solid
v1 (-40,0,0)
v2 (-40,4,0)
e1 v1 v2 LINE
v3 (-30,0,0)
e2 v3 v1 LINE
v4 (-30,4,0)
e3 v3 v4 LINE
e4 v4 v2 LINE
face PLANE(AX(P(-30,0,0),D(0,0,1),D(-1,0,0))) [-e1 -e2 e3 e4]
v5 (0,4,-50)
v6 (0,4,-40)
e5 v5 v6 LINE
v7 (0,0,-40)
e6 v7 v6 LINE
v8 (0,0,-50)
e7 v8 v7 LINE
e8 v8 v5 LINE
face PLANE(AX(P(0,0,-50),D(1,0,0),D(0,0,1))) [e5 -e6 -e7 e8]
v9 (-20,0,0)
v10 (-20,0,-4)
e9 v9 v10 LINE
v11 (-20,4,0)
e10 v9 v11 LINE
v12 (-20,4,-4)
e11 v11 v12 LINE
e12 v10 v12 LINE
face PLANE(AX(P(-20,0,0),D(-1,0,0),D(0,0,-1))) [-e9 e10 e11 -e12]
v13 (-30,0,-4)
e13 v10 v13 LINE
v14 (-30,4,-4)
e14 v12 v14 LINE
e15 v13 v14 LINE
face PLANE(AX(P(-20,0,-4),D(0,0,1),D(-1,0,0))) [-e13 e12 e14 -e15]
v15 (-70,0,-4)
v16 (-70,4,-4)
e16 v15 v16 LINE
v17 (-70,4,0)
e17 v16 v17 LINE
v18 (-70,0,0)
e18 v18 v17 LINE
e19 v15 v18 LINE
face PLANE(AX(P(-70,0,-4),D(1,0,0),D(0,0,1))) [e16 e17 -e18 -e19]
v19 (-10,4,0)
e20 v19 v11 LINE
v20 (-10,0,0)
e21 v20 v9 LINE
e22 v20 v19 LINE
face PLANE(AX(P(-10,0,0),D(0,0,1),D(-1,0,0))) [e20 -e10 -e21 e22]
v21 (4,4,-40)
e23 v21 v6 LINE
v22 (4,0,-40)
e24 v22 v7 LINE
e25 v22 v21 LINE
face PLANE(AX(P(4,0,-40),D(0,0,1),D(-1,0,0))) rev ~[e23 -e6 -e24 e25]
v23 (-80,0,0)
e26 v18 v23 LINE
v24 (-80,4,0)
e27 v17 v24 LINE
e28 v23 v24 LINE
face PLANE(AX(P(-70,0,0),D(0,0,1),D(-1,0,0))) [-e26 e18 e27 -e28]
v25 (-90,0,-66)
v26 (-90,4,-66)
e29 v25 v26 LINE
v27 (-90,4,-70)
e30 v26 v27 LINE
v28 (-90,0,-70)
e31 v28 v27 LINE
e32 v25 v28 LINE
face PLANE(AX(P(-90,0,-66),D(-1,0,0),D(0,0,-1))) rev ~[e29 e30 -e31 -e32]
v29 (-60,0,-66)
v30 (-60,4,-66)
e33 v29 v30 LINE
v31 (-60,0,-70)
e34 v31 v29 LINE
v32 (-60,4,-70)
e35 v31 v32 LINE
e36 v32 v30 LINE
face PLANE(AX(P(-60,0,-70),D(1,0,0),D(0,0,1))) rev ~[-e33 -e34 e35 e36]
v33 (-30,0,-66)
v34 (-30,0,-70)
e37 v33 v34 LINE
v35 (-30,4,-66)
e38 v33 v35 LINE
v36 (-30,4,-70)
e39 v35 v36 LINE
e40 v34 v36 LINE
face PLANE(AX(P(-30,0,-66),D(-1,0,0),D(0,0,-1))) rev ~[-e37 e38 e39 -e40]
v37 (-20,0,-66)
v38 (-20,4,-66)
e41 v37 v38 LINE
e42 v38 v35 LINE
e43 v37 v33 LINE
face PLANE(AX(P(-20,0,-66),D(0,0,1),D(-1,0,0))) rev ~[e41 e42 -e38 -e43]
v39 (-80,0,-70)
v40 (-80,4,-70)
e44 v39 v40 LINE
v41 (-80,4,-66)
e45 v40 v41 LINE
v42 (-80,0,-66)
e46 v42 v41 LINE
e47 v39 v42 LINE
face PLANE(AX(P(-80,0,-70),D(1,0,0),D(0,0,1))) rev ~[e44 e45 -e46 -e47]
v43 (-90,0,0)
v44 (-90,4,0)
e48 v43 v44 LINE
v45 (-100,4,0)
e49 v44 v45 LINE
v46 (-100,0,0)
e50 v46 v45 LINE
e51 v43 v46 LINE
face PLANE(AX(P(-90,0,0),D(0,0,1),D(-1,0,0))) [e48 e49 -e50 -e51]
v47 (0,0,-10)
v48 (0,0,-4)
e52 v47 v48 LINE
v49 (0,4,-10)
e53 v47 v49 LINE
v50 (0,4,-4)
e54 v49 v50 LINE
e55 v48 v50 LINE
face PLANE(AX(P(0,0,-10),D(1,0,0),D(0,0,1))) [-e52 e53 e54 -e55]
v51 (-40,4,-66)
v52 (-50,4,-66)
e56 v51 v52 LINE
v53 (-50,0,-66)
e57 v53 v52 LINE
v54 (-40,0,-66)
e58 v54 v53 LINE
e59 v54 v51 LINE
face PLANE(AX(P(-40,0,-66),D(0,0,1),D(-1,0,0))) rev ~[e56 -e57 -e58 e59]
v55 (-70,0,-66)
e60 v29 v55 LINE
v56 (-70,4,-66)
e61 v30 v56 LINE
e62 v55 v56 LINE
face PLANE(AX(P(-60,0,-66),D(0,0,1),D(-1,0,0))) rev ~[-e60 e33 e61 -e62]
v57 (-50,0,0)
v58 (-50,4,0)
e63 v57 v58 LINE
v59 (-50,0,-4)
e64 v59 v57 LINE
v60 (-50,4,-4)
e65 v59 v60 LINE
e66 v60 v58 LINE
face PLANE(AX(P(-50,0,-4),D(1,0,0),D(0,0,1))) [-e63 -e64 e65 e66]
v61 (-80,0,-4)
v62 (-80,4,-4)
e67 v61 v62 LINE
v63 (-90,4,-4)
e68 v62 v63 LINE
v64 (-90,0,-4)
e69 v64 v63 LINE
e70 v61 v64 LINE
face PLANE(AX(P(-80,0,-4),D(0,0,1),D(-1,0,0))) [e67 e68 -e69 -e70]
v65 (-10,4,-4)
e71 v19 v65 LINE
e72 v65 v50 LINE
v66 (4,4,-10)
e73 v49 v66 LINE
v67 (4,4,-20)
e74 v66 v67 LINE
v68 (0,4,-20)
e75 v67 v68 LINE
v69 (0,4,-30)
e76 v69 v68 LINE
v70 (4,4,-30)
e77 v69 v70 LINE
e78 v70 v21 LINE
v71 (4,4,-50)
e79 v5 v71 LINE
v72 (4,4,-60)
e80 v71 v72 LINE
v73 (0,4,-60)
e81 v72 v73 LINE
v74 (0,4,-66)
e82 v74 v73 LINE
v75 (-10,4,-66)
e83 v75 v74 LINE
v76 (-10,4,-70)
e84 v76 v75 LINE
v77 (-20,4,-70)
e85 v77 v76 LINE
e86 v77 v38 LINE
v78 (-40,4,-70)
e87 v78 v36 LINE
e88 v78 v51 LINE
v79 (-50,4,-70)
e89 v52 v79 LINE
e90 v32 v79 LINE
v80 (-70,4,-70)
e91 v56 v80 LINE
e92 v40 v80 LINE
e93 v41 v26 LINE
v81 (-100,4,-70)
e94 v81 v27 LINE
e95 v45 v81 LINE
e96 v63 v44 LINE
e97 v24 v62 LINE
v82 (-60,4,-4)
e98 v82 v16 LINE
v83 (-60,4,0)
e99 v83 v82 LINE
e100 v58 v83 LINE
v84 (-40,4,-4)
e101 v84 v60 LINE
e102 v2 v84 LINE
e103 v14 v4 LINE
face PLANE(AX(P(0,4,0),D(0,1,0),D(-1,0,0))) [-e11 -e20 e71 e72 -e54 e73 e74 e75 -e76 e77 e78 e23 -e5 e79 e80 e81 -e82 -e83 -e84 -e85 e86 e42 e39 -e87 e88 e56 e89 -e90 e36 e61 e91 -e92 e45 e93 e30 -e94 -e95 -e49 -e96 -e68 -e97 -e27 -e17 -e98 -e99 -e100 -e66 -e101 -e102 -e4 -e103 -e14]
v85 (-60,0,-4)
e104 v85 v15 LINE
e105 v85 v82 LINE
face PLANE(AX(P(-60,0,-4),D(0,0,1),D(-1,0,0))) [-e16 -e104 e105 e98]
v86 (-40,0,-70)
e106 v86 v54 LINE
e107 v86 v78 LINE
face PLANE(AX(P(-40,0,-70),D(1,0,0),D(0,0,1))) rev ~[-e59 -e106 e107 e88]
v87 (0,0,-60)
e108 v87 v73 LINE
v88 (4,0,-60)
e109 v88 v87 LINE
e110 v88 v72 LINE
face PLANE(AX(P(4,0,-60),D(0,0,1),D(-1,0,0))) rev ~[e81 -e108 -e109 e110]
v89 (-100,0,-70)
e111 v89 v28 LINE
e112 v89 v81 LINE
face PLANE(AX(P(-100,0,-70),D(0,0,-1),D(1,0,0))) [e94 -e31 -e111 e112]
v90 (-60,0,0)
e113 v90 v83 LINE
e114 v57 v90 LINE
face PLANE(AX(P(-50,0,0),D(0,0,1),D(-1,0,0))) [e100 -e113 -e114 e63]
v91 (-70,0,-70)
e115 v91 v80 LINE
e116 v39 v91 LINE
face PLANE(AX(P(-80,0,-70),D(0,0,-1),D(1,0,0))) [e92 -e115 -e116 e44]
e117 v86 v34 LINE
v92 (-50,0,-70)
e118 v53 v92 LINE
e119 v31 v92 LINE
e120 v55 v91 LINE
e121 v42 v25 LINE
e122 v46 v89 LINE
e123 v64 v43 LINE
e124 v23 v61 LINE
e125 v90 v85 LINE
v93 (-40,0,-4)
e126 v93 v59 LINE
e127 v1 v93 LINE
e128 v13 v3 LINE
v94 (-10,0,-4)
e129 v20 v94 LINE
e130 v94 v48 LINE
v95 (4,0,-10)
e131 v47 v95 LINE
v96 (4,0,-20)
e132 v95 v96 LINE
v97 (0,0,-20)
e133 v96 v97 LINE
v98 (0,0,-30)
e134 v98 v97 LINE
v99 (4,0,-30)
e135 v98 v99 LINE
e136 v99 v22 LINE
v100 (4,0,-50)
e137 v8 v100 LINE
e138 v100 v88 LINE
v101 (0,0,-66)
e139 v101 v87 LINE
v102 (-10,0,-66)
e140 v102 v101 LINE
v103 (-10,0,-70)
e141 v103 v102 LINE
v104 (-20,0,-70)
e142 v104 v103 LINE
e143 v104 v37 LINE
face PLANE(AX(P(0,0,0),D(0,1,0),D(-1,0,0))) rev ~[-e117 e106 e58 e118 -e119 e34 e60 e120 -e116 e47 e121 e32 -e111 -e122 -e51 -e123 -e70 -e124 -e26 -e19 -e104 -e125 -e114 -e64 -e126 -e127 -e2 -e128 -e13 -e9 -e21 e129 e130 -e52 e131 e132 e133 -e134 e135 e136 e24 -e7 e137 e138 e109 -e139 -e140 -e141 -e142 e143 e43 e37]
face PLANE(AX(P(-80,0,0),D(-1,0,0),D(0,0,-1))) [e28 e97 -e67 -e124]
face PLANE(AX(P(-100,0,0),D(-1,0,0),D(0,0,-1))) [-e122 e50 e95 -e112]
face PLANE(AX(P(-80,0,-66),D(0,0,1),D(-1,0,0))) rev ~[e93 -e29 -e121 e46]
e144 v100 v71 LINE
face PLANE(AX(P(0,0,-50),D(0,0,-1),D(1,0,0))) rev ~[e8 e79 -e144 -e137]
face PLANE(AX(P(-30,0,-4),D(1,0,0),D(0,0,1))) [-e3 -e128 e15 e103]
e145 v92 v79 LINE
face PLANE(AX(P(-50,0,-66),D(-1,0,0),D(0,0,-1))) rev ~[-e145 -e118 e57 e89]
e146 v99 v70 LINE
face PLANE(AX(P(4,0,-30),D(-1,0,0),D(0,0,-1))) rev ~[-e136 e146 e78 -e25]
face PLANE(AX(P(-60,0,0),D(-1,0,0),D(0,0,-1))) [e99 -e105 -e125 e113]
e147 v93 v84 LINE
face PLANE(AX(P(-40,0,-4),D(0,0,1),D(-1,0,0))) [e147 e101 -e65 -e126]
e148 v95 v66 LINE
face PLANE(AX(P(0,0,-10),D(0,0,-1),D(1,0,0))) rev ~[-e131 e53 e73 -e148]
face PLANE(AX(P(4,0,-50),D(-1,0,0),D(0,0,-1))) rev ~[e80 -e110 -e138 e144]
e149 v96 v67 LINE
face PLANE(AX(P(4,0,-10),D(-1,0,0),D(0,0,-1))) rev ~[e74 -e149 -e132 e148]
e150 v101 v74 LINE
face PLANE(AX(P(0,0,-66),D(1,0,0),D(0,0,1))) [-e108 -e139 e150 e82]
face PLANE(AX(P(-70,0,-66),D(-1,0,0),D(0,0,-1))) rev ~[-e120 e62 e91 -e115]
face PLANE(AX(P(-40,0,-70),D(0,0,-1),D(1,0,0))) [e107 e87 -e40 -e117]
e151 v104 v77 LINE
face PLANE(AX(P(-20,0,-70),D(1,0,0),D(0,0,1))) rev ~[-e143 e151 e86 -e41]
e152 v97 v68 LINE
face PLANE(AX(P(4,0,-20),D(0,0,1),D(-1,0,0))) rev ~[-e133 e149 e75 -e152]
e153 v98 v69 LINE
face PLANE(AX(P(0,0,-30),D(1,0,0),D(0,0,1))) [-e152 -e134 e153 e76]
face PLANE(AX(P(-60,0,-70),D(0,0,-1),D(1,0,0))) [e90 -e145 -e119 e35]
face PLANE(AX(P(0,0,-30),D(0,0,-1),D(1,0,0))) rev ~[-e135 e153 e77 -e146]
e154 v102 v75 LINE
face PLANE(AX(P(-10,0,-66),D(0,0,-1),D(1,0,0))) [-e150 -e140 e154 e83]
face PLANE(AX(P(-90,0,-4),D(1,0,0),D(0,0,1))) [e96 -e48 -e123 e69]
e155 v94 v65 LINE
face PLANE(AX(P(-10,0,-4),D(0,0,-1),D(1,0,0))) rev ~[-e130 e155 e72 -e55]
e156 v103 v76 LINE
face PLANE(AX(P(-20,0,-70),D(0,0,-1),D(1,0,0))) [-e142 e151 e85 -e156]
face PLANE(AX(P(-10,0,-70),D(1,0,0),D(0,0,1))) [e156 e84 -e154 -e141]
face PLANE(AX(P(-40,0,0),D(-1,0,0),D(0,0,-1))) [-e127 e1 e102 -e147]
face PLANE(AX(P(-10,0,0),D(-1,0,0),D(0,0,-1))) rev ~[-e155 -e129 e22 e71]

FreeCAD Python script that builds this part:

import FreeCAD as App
import Part
import Sketcher

V = App.Vector

doc = App.newDocument("Part")
body = doc.addObject("PartDesign::Body", "Body")

# Sketch on XZ plane
sketch1 = body.newObject("Sketcher::SketchObject", "Sketch")
sketch1.AttachmentSupport = (doc.getObject("XZ_Plane"), [""])
sketch1.MapMode = "FlatFace"
sketch1.addGeometry(Part.LineSegment(V(-20, 0, 0), V(-10, 0, 0)), False)
sketch1.addGeometry(Part.LineSegment(V(-10, 0, 0), V(-10, -4, 0)), False)
sketch1.addGeometry(Part.LineSegment(V(-10, -4, 0), V(0, -4, 0)), False)
sketch1.addGeometry(Part.LineSegment(V(0, -4, 0), V(0, -10, 0)), False)
sketch1.addGeometry(Part.LineSegment(V(0, -10, 0), V(4, -10, 0)), False)
sketch1.addGeometry(Part.LineSegment(V(4, -10, 0), V(4, -20, 0)), False)
sketch1.addGeometry(Part.LineSegment(V(4, -20, 0), V(0, -20, 0)), False)
sketch1.addGeometry(Part.LineSegment(V(0, -20, 0), V(0, -30, 0)), False)
sketch1.addGeometry(Part.LineSegment(V(0, -30, 0), V(4, -30, 0)), False)
sketch1.addGeometry(Part.LineSegment(V(4, -30, 0), V(4, -40, 0)), False)
sketch1.addGeometry(Part.LineSegment(V(4, -40, 0), V(0, -40, 0)), False)
sketch1.addGeometry(Part.LineSegment(V(0, -40, 0), V(0, -50, 0)), False)
sketch1.addGeometry(Part.LineSegment(V(0, -50, 0), V(4, -50, 0)), False)
sketch1.addGeometry(Part.LineSegment(V(4, -50, 0), V(4, -60, 0)), False)
sketch1.addGeometry(Part.LineSegment(V(4, -60, 0), V(0, -60, 0)), False)
sketch1.addGeometry(Part.LineSegment(V(0, -60, 0), V(0, -66, 0)), False)
sketch1.addGeometry(Part.LineSegment(V(0, -66, 0), V(-10, -66, 0)), False)
sketch1.addGeometry(Part.LineSegment(V(-10, -66, 0), V(-10, -70, 0)), False)
sketch1.addGeometry(Part.LineSegment(V(-10, -70, 0), V(-20, -70, 0)), False)
sketch1.addGeometry(Part.LineSegment(V(-20, -70, 0), V(-20, -66, 0)), False)
sketch1.addGeometry(Part.LineSegment(V(-20, -66, 0), V(-30, -66, 0)), False)
sketch1.addGeometry(Part.LineSegment(V(-30, -66, 0), V(-30, -70, 0)), False)
sketch1.addGeometry(Part.LineSegment(V(-30, -70, 0), V(-40, -70, 0)), False)
sketch1.addGeometry(Part.LineSegment(V(-40, -70, 0), V(-40, -66, 0)), False)
sketch1.addGeometry(Part.LineSegment(V(-40, -66, 0), V(-50, -66, 0)), False)
sketch1.addGeometry(Part.LineSegment(V(-50, -66, 0), V(-50, -70, 0)), False)
sketch1.addGeometry(Part.LineSegment(V(-50, -70, 0), V(-60, -70, 0)), False)
sketch1.addGeometry(Part.LineSegment(V(-60, -70, 0), V(-60, -66, 0)), False)
sketch1.addGeometry(Part.LineSegment(V(-60, -66, 0), V(-70, -66, 0)), False)
sketch1.addGeometry(Part.LineSegment(V(-70, -66, 0), V(-70, -70, 0)), False)
sketch1.addGeometry(Part.LineSegment(V(-70, -70, 0), V(-80, -70, 0)), False)
sketch1.addGeometry(Part.LineSegment(V(-80, -70, 0), V(-80, -66, 0)), False)
sketch1.addGeometry(Part.LineSegment(V(-80, -66, 0), V(-90, -66, 0)), False)
sketch1.addGeometry(Part.LineSegment(V(-90, -66, 0), V(-90, -70, 0)), False)
sketch1.addGeometry(Part.LineSegment(V(-90, -70, 0), V(-100, -70, 0)), False)
sketch1.addGeometry(Part.LineSegment(V(-100, -70, 0), V(-100, 0, 0)), False)
sketch1.addGeometry(Part.LineSegment(V(-100, 0, 0), V(-90, 0, 0)), False)
sketch1.addGeometry(Part.LineSegment(V(-90, 0, 0), V(-90, -4, 0)), False)
sketch1.addGeometry(Part.LineSegment(V(-90, -4, 0), V(-80, -4, 0)), False)
sketch1.addGeometry(Part.LineSegment(V(-80, -4, 0), V(-80, 0, 0)), False)
sketch1.addGeometry(Part.LineSegment(V(-80, 0, 0), V(-70, 0, 0)), False)
sketch1.addGeometry(Part.LineSegment(V(-70, 0, 0), V(-70, -4, 0)), False)
sketch1.addGeometry(Part.LineSegment(V(-70, -4, 0), V(-60, -4, 0)), False)
sketch1.addGeometry(Part.LineSegment(V(-60, -4, 0), V(-60, 0, 0)), False)
sketch1.addGeometry(Part.LineSegment(V(-60, 0, 0), V(-50, 0, 0)), False)
sketch1.addGeometry(Part.LineSegment(V(-50, 0, 0), V(-50, -4, 0)), False)
sketch1.addGeometry(Part.LineSegment(V(-50, -4, 0), V(-40, -4, 0)), False)
sketch1.addGeometry(Part.LineSegment(V(-40, -4, 0), V(-40, 0, 0)), False)
sketch1.addGeometry(Part.LineSegment(V(-40, 0, 0), V(-30, 0, 0)), False)
sketch1.addGeometry(Part.LineSegment(V(-30, 0, 0), V(-30, -4, 0)), False)
sketch1.addGeometry(Part.LineSegment(V(-30, -4, 0), V(-20, -4, 0)), False)
sketch1.addGeometry(Part.LineSegment(V(-20, -4, 0), V(-20, 0, 0)), False)
sketch1.addConstraint(Sketcher.Constraint("Coincident", 0, 2, 1, 1))
sketch1.addConstraint(Sketcher.Constraint("Coincident", 1, 2, 2, 1))
sketch1.addConstraint(Sketcher.Constraint("Coincident", 2, 2, 3, 1))
sketch1.addConstraint(Sketcher.Constraint("Coincident", 3, 2, 4, 1))
sketch1.addConstraint(Sketcher.Constraint("Coincident", 4, 2, 5, 1))
sketch1.addConstraint(Sketcher.Constraint("Coincident", 5, 2, 6, 1))
sketch1.addConstraint(Sketcher.Constraint("Coincident", 6, 2, 7, 1))
sketch1.addConstraint(Sketcher.Constraint("Coincident", 7, 2, 8, 1))
sketch1.addConstraint(Sketcher.Constraint("Coincident", 8, 2, 9, 1))
sketch1.addConstraint(Sketcher.Constraint("Coincident", 9, 2, 10, 1))
sketch1.addConstraint(Sketcher.Constraint("Coincident", 10, 2, 11, 1))
sketch1.addConstraint(Sketcher.Constraint("Coincident", 11, 2, 12, 1))
sketch1.addConstraint(Sketcher.Constraint("Coincident", 12, 2, 13, 1))
sketch1.addConstraint(Sketcher.Constraint("Coincident", 13, 2, 14, 1))
sketch1.addConstraint(Sketcher.Constraint("Coincident", 14, 2, 15, 1))
sketch1.addConstraint(Sketcher.Constraint("Coincident", 15, 2, 16, 1))
sketch1.addConstraint(Sketcher.Constraint("Coincident", 16, 2, 17, 1))
sketch1.addConstraint(Sketcher.Constraint("Coincident", 17, 2, 18, 1))
sketch1.addConstraint(Sketcher.Constraint("Coincident", 18, 2, 19, 1))
sketch1.addConstraint(Sketcher.Constraint("Coincident", 19, 2, 20, 1))
sketch1.addConstraint(Sketcher.Constraint("Coincident", 20, 2, 21, 1))
sketch1.addConstraint(Sketcher.Constraint("Coincident", 21, 2, 22, 1))
sketch1.addConstraint(Sketcher.Constraint("Coincident", 22, 2, 23, 1))
sketch1.addConstraint(Sketcher.Constraint("Coincident", 23, 2, 24, 1))
sketch1.addConstraint(Sketcher.Constraint("Coincident", 24, 2, 25, 1))
sketch1.addConstraint(Sketcher.Constraint("Coincident", 25, 2, 26, 1))
sketch1.addConstraint(Sketcher.Constraint("Coincident", 26, 2, 27, 1))
sketch1.addConstraint(Sketcher.Constraint("Coincident", 27, 2, 28, 1))
sketch1.addConstraint(Sketcher.Constraint("Coincident", 28, 2, 29, 1))
sketch1.addConstraint(Sketcher.Constraint("Coincident", 29, 2, 30, 1))
sketch1.addConstraint(Sketcher.Constraint("Coincident", 30, 2, 31, 1))
sketch1.addConstraint(Sketcher.Constraint("Coincident", 31, 2, 32, 1))
sketch1.addConstraint(Sketcher.Constraint("Coincident", 32, 2, 33, 1))
sketch1.addConstraint(Sketcher.Constraint("Coincident", 33, 2, 34, 1))
sketch1.addConstraint(Sketcher.Constraint("Coincident", 34, 2, 35, 1))
sketch1.addConstraint(Sketcher.Constraint("Coincident", 35, 2, 36, 1))
sketch1.addConstraint(Sketcher.Constraint("Coincident", 36, 2, 37, 1))
sketch1.addConstraint(Sketcher.Constraint("Coincident", 37, 2, 38, 1))
sketch1.addConstraint(Sketcher.Constraint("Coincident", 38, 2, 39, 1))
sketch1.addConstraint(Sketcher.Constraint("Coincident", 39, 2, 40, 1))
sketch1.addConstraint(Sketcher.Constraint("Coincident", 40, 2, 41, 1))
sketch1.addConstraint(Sketcher.Constraint("Coincident", 41, 2, 42, 1))
sketch1.addConstraint(Sketcher.Constraint("Coincident", 42, 2, 43, 1))
sketch1.addConstraint(Sketcher.Constraint("Coincident", 43, 2, 44, 1))
sketch1.addConstraint(Sketcher.Constraint("Coincident", 44, 2, 45, 1))
sketch1.addConstraint(Sketcher.Constraint("Coincident", 45, 2, 46, 1))
sketch1.addConstraint(Sketcher.Constraint("Coincident", 46, 2, 47, 1))
sketch1.addConstraint(Sketcher.Constraint("Coincident", 47, 2, 48, 1))
sketch1.addConstraint(Sketcher.Constraint("Coincident", 48, 2, 49, 1))
sketch1.addConstraint(Sketcher.Constraint("Coincident", 49, 2, 50, 1))
sketch1.addConstraint(Sketcher.Constraint("Coincident", 50, 2, 51, 1))
sketch1.addConstraint(Sketcher.Constraint("Coincident", 51, 2, 0, 1))
sketch1.addConstraint(Sketcher.Constraint("Horizontal", 0))
sketch1.addConstraint(Sketcher.Constraint("Vertical", 1))
sketch1.addConstraint(Sketcher.Constraint("Horizontal", 2))
sketch1.addConstraint(Sketcher.Constraint("Vertical", 3))
sketch1.addConstraint(Sketcher.Constraint("Horizontal", 4))
sketch1.addConstraint(Sketcher.Constraint("Vertical", 5))
sketch1.addConstraint(Sketcher.Constraint("Horizontal", 6))
sketch1.addConstraint(Sketcher.Constraint("Vertical", 7))
sketch1.addConstraint(Sketcher.Constraint("Horizontal", 8))
sketch1.addConstraint(Sketcher.Constraint("Vertical", 9))
sketch1.addConstraint(Sketcher.Constraint("Horizontal", 10))
sketch1.addConstraint(Sketcher.Constraint("Vertical", 11))
sketch1.addConstraint(Sketcher.Constraint("Horizontal", 12))
sketch1.addConstraint(Sketcher.Constraint("Vertical", 13))
sketch1.addConstraint(Sketcher.Constraint("Horizontal", 14))
sketch1.addConstraint(Sketcher.Constraint("Vertical", 15))
sketch1.addConstraint(Sketcher.Constraint("Horizontal", 16))
sketch1.addConstraint(Sketcher.Constraint("Vertical", 17))
sketch1.addConstraint(Sketcher.Constraint("Horizontal", 18))
sketch1.addConstraint(Sketcher.Constraint("Vertical", 19))
sketch1.addConstraint(Sketcher.Constraint("Horizontal", 20))
sketch1.addConstraint(Sketcher.Constraint("Vertical", 21))
sketch1.addConstraint(Sketcher.Constraint("Horizontal", 22))
sketch1.addConstraint(Sketcher.Constraint("Vertical", 23))
sketch1.addConstraint(Sketcher.Constraint("Horizontal", 24))
sketch1.addConstraint(Sketcher.Constraint("Vertical", 25))
sketch1.addConstraint(Sketcher.Constraint("Horizontal", 26))
sketch1.addConstraint(Sketcher.Constraint("Vertical", 27))
sketch1.addConstraint(Sketcher.Constraint("Horizontal", 28))
sketch1.addConstraint(Sketcher.Constraint("Vertical", 29))
sketch1.addConstraint(Sketcher.Constraint("Horizontal", 30))
sketch1.addConstraint(Sketcher.Constraint("Vertical", 31))
sketch1.addConstraint(Sketcher.Constraint("Horizontal", 32))
sketch1.addConstraint(Sketcher.Constraint("Vertical", 33))
sketch1.addConstraint(Sketcher.Constraint("Horizontal", 34))
sketch1.addConstraint(Sketcher.Constraint("Vertical", 35))
sketch1.addConstraint(Sketcher.Constraint("Horizontal", 36))
sketch1.addConstraint(Sketcher.Constraint("Vertical", 37))
sketch1.addConstraint(Sketcher.Constraint("Horizontal", 38))
sketch1.addConstraint(Sketcher.Constraint("Vertical", 39))
sketch1.addConstraint(Sketcher.Constraint("Horizontal", 40))
sketch1.addConstraint(Sketcher.Constraint("Vertical", 41))
sketch1.addConstraint(Sketcher.Constraint("Horizontal", 42))
sketch1.addConstraint(Sketcher.Constraint("Vertical", 43))
sketch1.addConstraint(Sketcher.Constraint("Horizontal", 44))
sketch1.addConstraint(Sketcher.Constraint("Vertical", 45))
sketch1.addConstraint(Sketcher.Constraint("Horizontal", 46))
sketch1.addConstraint(Sketcher.Constraint("Vertical", 47))
sketch1.addConstraint(Sketcher.Constraint("Horizontal", 48))
sketch1.addConstraint(Sketcher.Constraint("Vertical", 49))
sketch1.addConstraint(Sketcher.Constraint("Horizontal", 50))
sketch1.addConstraint(Sketcher.Constraint("Vertical", 51))
sketch1.addConstraint(Sketcher.Constraint("PointOnObject", 0, 2, -1))
sketch1.addConstraint(Sketcher.Constraint("PointOnObject", 2, 2, -2))
sketch1.addConstraint(Sketcher.Constraint("PointOnObject", 6, 2, -2))
sketch1.addConstraint(Sketcher.Constraint("PointOnObject", 10, 2, -2))
sketch1.addConstraint(Sketcher.Constraint("PointOnObject", 14, 2, -2))
sketch1.addConstraint(Sketcher.Constraint("PointOnObject", 35, 2, -1))
sketch1.addConstraint(Sketcher.Constraint("PointOnObject", 39, 2, -1))
sketch1.addConstraint(Sketcher.Constraint("PointOnObject", 43, 2, -1))
sketch1.addConstraint(Sketcher.Constraint("PointOnObject", 47, 2, -1))
sketch1.addConstraint(Sketcher.Constraint("Horizontal", 16, 2, 19, 2))
sketch1.addConstraint(Sketcher.Constraint("Horizontal", 18, 2, 21, 2))
sketch1.addConstraint(Sketcher.Constraint("Horizontal", 20, 2, 23, 2))
sketch1.addConstraint(Sketcher.Constraint("Horizontal", 22, 2, 25, 2))
sketch1.addConstraint(Sketcher.Constraint("Horizontal", 24, 2, 27, 2))
sketch1.addConstraint(Sketcher.Constraint("Horizontal", 26, 2, 29, 2))
sketch1.addConstraint(Sketcher.Constraint("Horizontal", 28, 2, 31, 2))
sketch1.addConstraint(Sketcher.Constraint("Horizontal", 30, 2, 33, 2))
sketch1.addConstraint(Sketcher.Constraint("Horizontal", 2, 2, 37, 2))
sketch1.addConstraint(Sketcher.Constraint("Horizontal", 38, 2, 41, 2))
sketch1.addConstraint(Sketcher.Constraint("Horizontal", 42, 2, 45, 2))
sketch1.addConstraint(Sketcher.Constraint("Horizontal", 46, 2, 49, 2))
sketch1.addConstraint(Sketcher.Constraint("Vertical", 5, 2, 8, 2))
sketch1.addConstraint(Sketcher.Constraint("Vertical", 9, 2, 12, 2))
sketch1.addConstraint(Sketcher.Constraint("Vertical", 1, 2, 16, 2))
sketch1.addConstraint(Sketcher.Constraint("Vertical", 33, 2, 36, 2))
sketch1.addConstraint(Sketcher.Constraint("Vertical", 31, 2, 38, 2))
sketch1.addConstraint(Sketcher.Constraint("Vertical", 29, 2, 40, 2))
sketch1.addConstraint(Sketcher.Constraint("Vertical", 27, 2, 42, 2))
sketch1.addConstraint(Sketcher.Constraint("Vertical", 25, 2, 44, 2))
sketch1.addConstraint(Sketcher.Constraint("Vertical", 23, 2, 46, 2))
sketch1.addConstraint(Sketcher.Constraint("Vertical", 21, 2, 48, 2))
sketch1.addConstraint(Sketcher.Constraint("Vertical", 19, 2, 50, 2))
sketch1.addConstraint(Sketcher.Constraint("Equal", 0, 2))
sketch1.addConstraint(Sketcher.Constraint("Equal", 18, 20))
sketch1.addConstraint(Sketcher.Constraint("Equal", 20, 22))
sketch1.addConstraint(Sketcher.Constraint("Equal", 22, 24))
sketch1.addConstraint(Sketcher.Constraint("Equal", 24, 26))
sketch1.addConstraint(Sketcher.Constraint("Equal", 26, 28))
sketch1.addConstraint(Sketcher.Constraint("Equal", 28, 30))
sketch1.addConstraint(Sketcher.Constraint("Equal", 30, 32))
sketch1.addConstraint(Sketcher.Constraint("Equal", 32, 34))
sketch1.addConstraint(Sketcher.Constraint("Equal", 14, 1))
sketch1.addConstraint(Sketcher.Constraint("Equal", 50, 5))
sketch1.addConstraint(Sketcher.Constraint("Equal", 5, 7))
sketch1.addConstraint(Sketcher.Constraint("Equal", 7, 9))
sketch1.addConstraint(Sketcher.Constraint("Equal", 9, 11))
sketch1.addConstraint(Sketcher.Constraint("Equal", 11, 13))
sketch1.addConstraint(Sketcher.Constraint("Equal", 3, 15))
sketch1.addConstraint(Sketcher.Constraint("Equal", 1, 17))
sketch1.addConstraint(Sketcher.Constraint("DistanceX", 0, 1, 0, 2, 10.0))
sketch1.addConstraint(Sketcher.Constraint("DistanceX", 4, 1, 4, 2, 4.0))
sketch1.addConstraint(Sketcher.Constraint("DistanceY", 35, 1, 35, 2, 70.0))
pad1 = body.newObject("PartDesign::Pad", "Pad")
pad1.Profile = sketch1
pad1.Length = 4
pad1.Reversed = True

doc.recompute()
